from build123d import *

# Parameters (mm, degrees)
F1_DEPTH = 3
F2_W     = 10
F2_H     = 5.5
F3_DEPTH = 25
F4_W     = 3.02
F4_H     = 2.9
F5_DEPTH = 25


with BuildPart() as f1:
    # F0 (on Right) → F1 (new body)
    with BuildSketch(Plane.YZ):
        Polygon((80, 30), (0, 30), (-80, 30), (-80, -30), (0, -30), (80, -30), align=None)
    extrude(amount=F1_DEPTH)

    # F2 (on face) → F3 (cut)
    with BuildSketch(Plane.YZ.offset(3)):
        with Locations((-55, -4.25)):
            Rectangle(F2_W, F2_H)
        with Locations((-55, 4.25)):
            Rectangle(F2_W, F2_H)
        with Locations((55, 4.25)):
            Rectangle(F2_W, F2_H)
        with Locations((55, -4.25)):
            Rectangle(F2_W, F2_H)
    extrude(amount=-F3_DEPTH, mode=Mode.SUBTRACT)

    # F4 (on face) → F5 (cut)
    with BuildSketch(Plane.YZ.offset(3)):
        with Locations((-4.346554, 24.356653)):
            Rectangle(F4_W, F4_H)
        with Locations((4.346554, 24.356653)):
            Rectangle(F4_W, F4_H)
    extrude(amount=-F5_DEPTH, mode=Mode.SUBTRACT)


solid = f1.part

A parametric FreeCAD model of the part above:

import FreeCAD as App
import Part
import Sketcher
Q = App.Units.Quantity


def add_polygon(sketch, points):
    """Adds a closed chain of lines whose ends are joined by coincident constraints."""
    first, n = sketch.GeometryCount, len(points)
    for a, b in zip(points, points[1:] + points[:1]):
        sketch.addGeometry(Part.LineSegment(App.Vector(*a, 0), App.Vector(*b, 0)), False)
    for i in range(n):
        sketch.addConstraint(Sketcher.Constraint("Coincident", first + i, 2, first + (i + 1) % n, 1))

doc = App.newDocument("Part")
body = doc.addObject("PartDesign::Body", "Body")

# Sketch on YZ plane
sketch1 = doc.addObject("Sketcher::SketchObject", "Sketch")
body.addObject(sketch1)
sketch1.AttachmentSupport = (doc.YZ_Plane, [""])
sketch1.MapMode = "FlatFace"
add_polygon(sketch1, [(80, 30), (-80, 30), (-80, -30), (80, -30)])  # lines 0-3
sketch1.addConstraint(Sketcher.Constraint("Horizontal", 0))
sketch1.addConstraint(Sketcher.Constraint("Vertical", 1))
sketch1.addConstraint(Sketcher.Constraint("Horizontal", 2))
sketch1.addConstraint(Sketcher.Constraint("Vertical", 3))
sketch1.addConstraint(Sketcher.Constraint("Symmetric", 0, 2, 2, 2, -1, 1))
sketch1.addConstraint(Sketcher.Constraint("DistanceX", 0, 2, 0, 1, Q("160 mm")))
sketch1.addConstraint(Sketcher.Constraint("DistanceY", 1, 2, 1, 1, Q("60 mm")))
pad1 = doc.addObject("PartDesign::Pad", "Pad")
body.addObject(pad1)
pad1.Profile = sketch1
pad1.Length = 3

# Sketch on YZ plane
sketch2 = doc.addObject("Sketcher::SketchObject", "Sketch001")
body.addObject(sketch2)
sketch2.AttachmentSupport = (doc.YZ_Plane, [""])
sketch2.MapMode = "FlatFace"
sketch2.AttachmentOffset = App.Placement(App.Vector(0, 0, 3), App.Rotation())
add_polygon(sketch2, [(-60, -2), (-60, -7), (-50, -7), (-50, -2)])  # lines 0-3
add_polygon(sketch2, [(-60, 7), (-60, 2), (-50, 2), (-50, 7)])  # lines 4-7
add_polygon(sketch2, [(50, 7), (50, 2), (60, 2), (60, 7)])  # lines 8-11
add_polygon(sketch2, [(50, -2), (50, -7), (60, -7), (60, -2)])  # lines 12-15
sketch2.addConstraint(Sketcher.Constraint("Vertical", 0))
sketch2.addConstraint(Sketcher.Constraint("Horizontal", 1))
sketch2.addConstraint(Sketcher.Constraint("Vertical", 2))
sketch2.addConstraint(Sketcher.Constraint("Horizontal", 3))
sketch2.addConstraint(Sketcher.Constraint("Vertical", 4))
sketch2.addConstraint(Sketcher.Constraint("Horizontal", 5))
sketch2.addConstraint(Sketcher.Constraint("Vertical", 6))
sketch2.addConstraint(Sketcher.Constraint("Horizontal", 7))
sketch2.addConstraint(Sketcher.Constraint("Vertical", 8))
sketch2.addConstraint(Sketcher.Constraint("Horizontal", 9))
sketch2.addConstraint(Sketcher.Constraint("Vertical", 10))
sketch2.addConstraint(Sketcher.Constraint("Horizontal", 11))
sketch2.addConstraint(Sketcher.Constraint("Vertical", 12))
sketch2.addConstraint(Sketcher.Constraint("Horizontal", 13))
sketch2.addConstraint(Sketcher.Constraint("Vertical", 14))
sketch2.addConstraint(Sketcher.Constraint("Horizontal", 15))
sketch2.addConstraint(Sketcher.Constraint("Symmetric", 2, 2, 8, 2, -1, 1))
sketch2.addConstraint(Sketcher.Constraint("Symmetric", 0, 2, 10, 2, -1, 1))
sketch2.addConstraint(Sketcher.Constraint("Symmetric", 6, 2, 12, 2, -1, 1))
sketch2.addConstraint(Sketcher.Constraint("Symmetric", 4, 2, 14, 2, -1, 1))
sketch2.addConstraint(Sketcher.Constraint("Symmetric", 5, 2, 8, 2, -2))
sketch2.addConstraint(Sketcher.Constraint("Symmetric", 7, 2, 10, 2, -2))
sketch2.addConstraint(Sketcher.Constraint("DistanceX", 1, 1, 1, 2, Q("10 mm")))
sketch2.addConstraint(Sketcher.Constraint("DistanceY", 0, 2, 0, 1, Q("5.5 mm")))
sketch2.addConstraint(Sketcher.Constraint("DistanceX", 0, 2, -1, 1, Q("60 mm")))
sketch2.addConstraint(Sketcher.Constraint("DistanceY", 0, 2, -1, 1, Q("7 mm")))
pocket1 = doc.addObject("PartDesign::Pocket", "Pocket")
body.addObject(pocket1)
pocket1.Profile = sketch2
pocket1.Length = 25

# Sketch on YZ plane
sketch3 = doc.addObject("Sketcher::SketchObject", "Sketch002")
body.addObject(sketch3)
sketch3.AttachmentSupport = (doc.YZ_Plane, [""])
sketch3.MapMode = "FlatFace"
sketch3.AttachmentOffset = App.Placement(App.Vector(0, 0, 3), App.Rotation())
add_polygon(sketch3, [(-5.9, 25.8), (-5.9, 22.9), (-2.8, 22.9), (-2.8, 25.8)])  # lines 0-3
add_polygon(sketch3, [(2.8, 25.8), (2.8, 22.9), (5.9, 22.9), (5.9, 25.8)])  # lines 4-7
sketch3.addConstraint(Sketcher.Constraint("Vertical", 0))
sketch3.addConstraint(Sketcher.Constraint("Horizontal", 1))
sketch3.addConstraint(Sketcher.Constraint("Vertical", 2))
sketch3.addConstraint(Sketcher.Constraint("Horizontal", 3))
sketch3.addConstraint(Sketcher.Constraint("Vertical", 4))
sketch3.addConstraint(Sketcher.Constraint("Horizontal", 5))
sketch3.addConstraint(Sketcher.Constraint("Vertical", 6))
sketch3.addConstraint(Sketcher.Constraint("Horizontal", 7))
sketch3.addConstraint(Sketcher.Constraint("Symmetric", 1, 2, 4, 2, -2))
sketch3.addConstraint(Sketcher.Constraint("Symmetric", 3, 2, 6, 2, -2))
sketch3.addConstraint(Sketcher.Constraint("DistanceY", 0, 2, 0, 1, Q("2.9 mm")))
sketch3.addConstraint(Sketcher.Constraint("DistanceX", 1, 1, 1, 2, Q("3.02 mm")))
sketch3.addConstraint(Sketcher.Constraint("DistanceX", 0, 2, -1, 1, Q("5.856554 mm")))
sketch3.addConstraint(Sketcher.Constraint("DistanceY", -1, 1, 0, 2, Q("22.906653 mm")))
pocket2 = doc.addObject("PartDesign::Pocket", "Pocket001")
body.addObject(pocket2)
pocket2.Profile = sketch3
pocket2.Length = 25

doc.recompute()
